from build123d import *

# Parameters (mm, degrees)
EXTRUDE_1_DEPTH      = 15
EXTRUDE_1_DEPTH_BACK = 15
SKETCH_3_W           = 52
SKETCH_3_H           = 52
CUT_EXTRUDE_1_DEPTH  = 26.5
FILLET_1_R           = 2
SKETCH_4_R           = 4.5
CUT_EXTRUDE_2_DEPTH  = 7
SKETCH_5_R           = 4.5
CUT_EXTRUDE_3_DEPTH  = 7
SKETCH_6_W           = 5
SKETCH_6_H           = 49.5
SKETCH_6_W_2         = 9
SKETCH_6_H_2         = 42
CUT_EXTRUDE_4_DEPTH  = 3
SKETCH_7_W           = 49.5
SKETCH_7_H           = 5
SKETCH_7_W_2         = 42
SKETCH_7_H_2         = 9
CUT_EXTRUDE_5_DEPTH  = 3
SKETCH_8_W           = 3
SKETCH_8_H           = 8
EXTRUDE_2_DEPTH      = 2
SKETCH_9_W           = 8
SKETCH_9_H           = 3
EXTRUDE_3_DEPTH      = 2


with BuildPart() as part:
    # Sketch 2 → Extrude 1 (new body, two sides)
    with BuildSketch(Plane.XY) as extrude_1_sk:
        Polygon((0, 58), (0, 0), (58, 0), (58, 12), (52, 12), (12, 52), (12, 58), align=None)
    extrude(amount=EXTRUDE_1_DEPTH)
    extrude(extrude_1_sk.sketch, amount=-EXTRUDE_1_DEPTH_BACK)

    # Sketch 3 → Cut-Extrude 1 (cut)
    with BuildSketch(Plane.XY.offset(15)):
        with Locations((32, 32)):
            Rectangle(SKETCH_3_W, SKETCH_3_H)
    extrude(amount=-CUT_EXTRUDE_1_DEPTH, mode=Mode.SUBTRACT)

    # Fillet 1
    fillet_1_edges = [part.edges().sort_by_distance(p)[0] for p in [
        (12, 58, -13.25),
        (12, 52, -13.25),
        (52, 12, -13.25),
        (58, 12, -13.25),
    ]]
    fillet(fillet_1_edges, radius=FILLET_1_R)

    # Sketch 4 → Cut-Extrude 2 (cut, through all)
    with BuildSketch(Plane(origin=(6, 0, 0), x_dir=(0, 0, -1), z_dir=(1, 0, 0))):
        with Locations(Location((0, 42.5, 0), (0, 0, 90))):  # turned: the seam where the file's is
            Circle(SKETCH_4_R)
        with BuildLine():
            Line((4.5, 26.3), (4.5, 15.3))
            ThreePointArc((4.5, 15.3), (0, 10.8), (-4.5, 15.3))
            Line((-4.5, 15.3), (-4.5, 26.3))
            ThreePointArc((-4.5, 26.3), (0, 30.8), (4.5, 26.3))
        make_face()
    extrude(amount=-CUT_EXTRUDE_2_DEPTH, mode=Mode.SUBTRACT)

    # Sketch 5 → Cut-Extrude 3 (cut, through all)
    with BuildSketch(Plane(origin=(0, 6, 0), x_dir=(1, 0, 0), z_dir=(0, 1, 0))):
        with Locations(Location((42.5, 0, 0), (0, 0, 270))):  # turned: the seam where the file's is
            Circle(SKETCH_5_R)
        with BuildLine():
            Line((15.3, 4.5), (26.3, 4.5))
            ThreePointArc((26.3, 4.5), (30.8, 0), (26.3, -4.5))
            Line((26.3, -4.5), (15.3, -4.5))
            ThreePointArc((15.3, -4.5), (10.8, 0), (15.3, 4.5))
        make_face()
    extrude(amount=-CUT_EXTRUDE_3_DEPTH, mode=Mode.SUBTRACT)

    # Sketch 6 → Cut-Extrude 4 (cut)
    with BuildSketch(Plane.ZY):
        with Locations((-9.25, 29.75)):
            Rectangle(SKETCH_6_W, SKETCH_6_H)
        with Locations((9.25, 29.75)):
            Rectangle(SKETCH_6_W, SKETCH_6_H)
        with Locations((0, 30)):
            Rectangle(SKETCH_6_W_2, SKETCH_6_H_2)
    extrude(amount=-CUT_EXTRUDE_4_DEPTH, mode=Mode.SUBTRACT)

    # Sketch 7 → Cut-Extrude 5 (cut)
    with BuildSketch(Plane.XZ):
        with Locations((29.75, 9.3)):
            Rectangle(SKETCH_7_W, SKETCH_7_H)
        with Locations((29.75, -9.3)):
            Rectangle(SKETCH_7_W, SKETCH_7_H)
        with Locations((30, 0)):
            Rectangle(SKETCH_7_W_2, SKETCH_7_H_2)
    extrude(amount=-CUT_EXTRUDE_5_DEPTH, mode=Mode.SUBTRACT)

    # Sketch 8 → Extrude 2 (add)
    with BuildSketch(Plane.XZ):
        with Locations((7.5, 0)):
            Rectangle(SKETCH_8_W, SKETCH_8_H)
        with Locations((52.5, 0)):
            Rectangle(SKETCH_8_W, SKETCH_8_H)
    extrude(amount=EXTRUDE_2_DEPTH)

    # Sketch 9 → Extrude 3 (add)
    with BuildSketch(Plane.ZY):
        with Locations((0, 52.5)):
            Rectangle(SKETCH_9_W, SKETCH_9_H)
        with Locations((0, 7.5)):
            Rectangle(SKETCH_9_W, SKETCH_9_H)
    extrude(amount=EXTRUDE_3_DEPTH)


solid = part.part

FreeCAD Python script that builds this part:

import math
import FreeCAD as App
import Part
import Sketcher

V = App.Vector
Q = App.Units.Quantity


def edges_at(feature, points):
    """Names of the edges that pass closest to the given points."""
    edges = feature.Shape.Edges
    near = lambda p: min(range(len(edges)), key=lambda i: edges[i].distToShape(Part.Vertex(*p))[0])
    return sorted({f"Edge{near(p) + 1}" for p in points})

doc = App.newDocument("Part")
params = doc.addObject("Spreadsheet::Sheet", "Params")
for row, (alias, value) in enumerate([
    ("sketch1_width", "58 mm"),
    ("sketch1_width2", "6 mm"),
    ("sketch1_width3", "12 mm"),
    ("pad1_length", "15 mm"),
    ("pad1_length2", "15 mm"),
    ("sketch2_width", "52 mm"),
    ("pocket1_length", "26.5 mm"),
    ("fillet_radius", "2 mm"),
    ("sketch3_diameter", "9 mm"),
    ("sketch3_width", "11 mm"),
    ("sketch4_diameter", "9 mm"),
    ("sketch4_width", "11 mm"),
    ("sketch5_width", "42 mm"),
    ("sketch5_height", "5 mm"),
    ("sketch5_height2", "9 mm"),
    ("sketch5_width2", "49.5 mm"),
    ("pocket4_length", "3 mm"),
    ("sketch6_width", "42 mm"),
    ("sketch6_height", "5 mm"),
    ("sketch6_height2", "9 mm"),
    ("sketch6_width2", "49.5 mm"),
    ("pocket5_length", "3 mm"),
    ("sketch7_width", "3 mm"),
    ("sketch7_height", "8 mm"),
    ("pad2_length", "2 mm"),
    ("sketch8_width", "3 mm"),
    ("sketch8_height", "8 mm"),
    ("pad3_length", "2 mm"),
], start=1):
    params.set(f"A{row}", alias)
    params.set(f"B{row}", "=" + value)
    params.setAlias(f"B{row}", alias)

body = doc.addObject("PartDesign::Body", "Body")

sketch1 = doc.addObject("Sketcher::SketchObject", "Sketch")
body.addObject(sketch1)
sketch1.AttachmentSupport = (doc.XY_Plane, [""])
sketch1.MapMode = "FlatFace"
sketch1.addGeometry([
    Part.LineSegment(V(0, 58, 0), V(0, 0, 0)),
    Part.LineSegment(V(0, 0, 0), V(58, 0, 0)),
    Part.LineSegment(V(58, 0, 0), V(58, 12, 0)),
    Part.LineSegment(V(58, 12, 0), V(52, 12, 0)),
    Part.LineSegment(V(52, 12, 0), V(12, 52, 0)),
    Part.LineSegment(V(12, 52, 0), V(12, 58, 0)),
    Part.LineSegment(V(12, 58, 0), V(0, 58, 0)),
], False)
sketch1.addConstraint([
    Sketcher.Constraint("Coincident", 0, 2, 1, 1),
    Sketcher.Constraint("Coincident", 1, 2, 2, 1),
    Sketcher.Constraint("Coincident", 2, 2, 3, 1),
    Sketcher.Constraint("Coincident", 3, 2, 4, 1),
    Sketcher.Constraint("Coincident", 4, 2, 5, 1),
    Sketcher.Constraint("Coincident", 5, 2, 6, 1),
    Sketcher.Constraint("Coincident", 6, 2, 0, 1),
    Sketcher.Constraint("Vertical", 0),
    Sketcher.Constraint("Horizontal", 1),
    Sketcher.Constraint("Vertical", 2),
    Sketcher.Constraint("Horizontal", 3),
    Sketcher.Constraint("Vertical", 5),
    Sketcher.Constraint("Horizontal", 6),
    Sketcher.Constraint("Coincident", 0, 2, -1, 1),
    Sketcher.Constraint("Equal", 1, 0),
    Sketcher.Constraint("Equal", 6, 2),
    Sketcher.Constraint("Equal", 3, 5),
    Sketcher.Constraint("DistanceX", 1, 1, 1, 2, Q("58 mm")),
    Sketcher.Constraint("DistanceX", 3, 2, 3, 1, Q("6 mm")),
    Sketcher.Constraint("DistanceX", 6, 2, 6, 1, Q("12 mm")),
])
sketch1.setExpression("Constraints[17]", "Params.sketch1_width")
sketch1.setExpression("Constraints[18]", "Params.sketch1_width2")
sketch1.setExpression("Constraints[19]", "Params.sketch1_width3")
pad1 = doc.addObject("PartDesign::Pad", "Pad")
body.addObject(pad1)
pad1.Profile = sketch1
pad1.Type = "TwoLengths"
pad1.setExpression("Length", "Params.pad1_length")
pad1.setExpression("Length2", "Params.pad1_length2")

sketch2 = doc.addObject("Sketcher::SketchObject", "Sketch001")
body.addObject(sketch2)
sketch2.AttachmentSupport = (doc.XY_Plane, [""])
sketch2.MapMode = "FlatFace"
sketch2.AttachmentOffset = App.Placement(V(0, 0, 15), App.Rotation())
sketch2.addGeometry([
    Part.LineSegment(V(6, 58, 0), V(6, 6, 0)),
    Part.LineSegment(V(6, 6, 0), V(58, 6, 0)),
    Part.LineSegment(V(58, 6, 0), V(58, 58, 0)),
    Part.LineSegment(V(58, 58, 0), V(6, 58, 0)),
], False)
sketch2.addConstraint([
    Sketcher.Constraint("Coincident", 0, 2, 1, 1),
    Sketcher.Constraint("Coincident", 1, 2, 2, 1),
    Sketcher.Constraint("Coincident", 2, 2, 3, 1),
    Sketcher.Constraint("Coincident", 3, 2, 0, 1),
    Sketcher.Constraint("Vertical", 0),
    Sketcher.Constraint("Horizontal", 1),
    Sketcher.Constraint("Vertical", 2),
    Sketcher.Constraint("Horizontal", 3),
    Sketcher.Constraint("Equal", 3, 0),
    Sketcher.Constraint("DistanceX", 1, 1, 1, 2, Q("52 mm")),
    Sketcher.Constraint("DistanceX", -1, 1, 0, 2, Q("6 mm")),
    Sketcher.Constraint("DistanceY", -1, 1, 0, 2, Q("6 mm")),
])
sketch2.setExpression("Constraints[9]", "Params.sketch2_width")
pocket1 = doc.addObject("PartDesign::Pocket", "Pocket")
body.addObject(pocket1)
pocket1.Profile = sketch2
pocket1.setExpression("Length", "Params.pocket1_length")
doc.recompute()

fillet = doc.addObject("PartDesign::Fillet", "Fillet")
body.addObject(fillet)
fillet.Base = (pocket1, edges_at(pocket1, [
    (12, 58, -13.25),
    (12, 52, -13.25),
    (52, 12, -13.25),
    (58, 12, -13.25),
]))
fillet.setExpression("Radius", "Params.fillet_radius")

sketch3 = doc.addObject("Sketcher::SketchObject", "Sketch002")
body.addObject(sketch3)
sketch3.AttachmentSupport = (doc.YZ_Plane, [""])
sketch3.MapMode = "FlatFace"
sketch3.AttachmentOffset = App.Placement(V(0, 0, 6), App.Rotation())
sketch3.addGeometry([
    Part.Circle(V(42.5, 0, 0), V(0, 0, 1), 4.5),
    Part.LineSegment(V(15.3, -4.5, 0), V(26.3, -4.5, 0)),
    Part.ArcOfCircle(Part.Circle(V(26.3, 0, 0), V(0, 0, 1), 4.5), math.radians(-90), math.radians(90)),
    Part.LineSegment(V(26.3, 4.5, 0), V(15.3, 4.5, 0)),
    Part.ArcOfCircle(Part.Circle(V(15.3, 0, 0), V(0, 0, 1), 4.5), math.radians(90), math.radians(270)),
], False)
sketch3.addConstraint([
    Sketcher.Constraint("Tangent", 1, 2, 2, 1),
    Sketcher.Constraint("Tangent", 2, 2, 3, 1),
    Sketcher.Constraint("Tangent", 3, 2, 4, 1),
    Sketcher.Constraint("Tangent", 4, 2, 1, 1),
    Sketcher.Constraint("Horizontal", 1),
    Sketcher.Constraint("Horizontal", 3),
    Sketcher.Constraint("Equal", 0, 2),
    Sketcher.Constraint("PointOnObject", 0, 3, -1),
    Sketcher.Constraint("PointOnObject", 2, 3, -1),
    Sketcher.Constraint("Diameter", 0, Q("9 mm")),
    Sketcher.Constraint("DistanceX", 1, 1, 1, 2, Q("11 mm")),
    Sketcher.Constraint("DistanceX", -1, 1, 0, 3, Q("42.5 mm")),
    Sketcher.Constraint("DistanceX", -1, 1, 2, 3, Q("26.3 mm")),
])
sketch3.setExpression("Constraints[9]", "Params.sketch3_diameter")
sketch3.setExpression("Constraints[10]", "Params.sketch3_width")
pocket2 = doc.addObject("PartDesign::Pocket", "Pocket001")
body.addObject(pocket2)
pocket2.Profile = sketch3
pocket2.Type = "ThroughAll"

sketch4 = doc.addObject("Sketcher::SketchObject", "Sketch003")
body.addObject(sketch4)
sketch4.AttachmentSupport = (doc.XZ_Plane, [""])
sketch4.MapMode = "FlatFace"
sketch4.AttachmentOffset = App.Placement(V(0, 0, -6), App.Rotation())
sketch4.addGeometry([
    Part.Circle(V(42.5, 0, 0), V(0, 0, 1), 4.5),
    Part.LineSegment(V(26.3, -4.5, 0), V(15.3, -4.5, 0)),
    Part.ArcOfCircle(Part.Circle(V(15.3, 0, 0), V(0, 0, 1), 4.5), math.radians(90), math.radians(270)),
    Part.LineSegment(V(15.3, 4.5, 0), V(26.3, 4.5, 0)),
    Part.ArcOfCircle(Part.Circle(V(26.3, 0, 0), V(0, 0, 1), 4.5), math.radians(-90), math.radians(90)),
], False)
sketch4.addConstraint([
    Sketcher.Constraint("Tangent", 1, 2, 2, 2),
    Sketcher.Constraint("Tangent", 2, 1, 3, 1),
    Sketcher.Constraint("Tangent", 3, 2, 4, 2),
    Sketcher.Constraint("Tangent", 4, 1, 1, 1),
    Sketcher.Constraint("Horizontal", 1),
    Sketcher.Constraint("Horizontal", 3),
    Sketcher.Constraint("Equal", 0, 2),
    Sketcher.Constraint("PointOnObject", 0, 3, -1),
    Sketcher.Constraint("PointOnObject", 2, 3, -1),
    Sketcher.Constraint("Diameter", 0, Q("9 mm")),
    Sketcher.Constraint("DistanceX", 1, 2, 1, 1, Q("11 mm")),
    Sketcher.Constraint("DistanceX", -1, 1, 0, 3, Q("42.5 mm")),
    Sketcher.Constraint("DistanceX", -1, 1, 2, 3, Q("15.3 mm")),
])
sketch4.setExpression("Constraints[9]", "Params.sketch4_diameter")
sketch4.setExpression("Constraints[10]", "Params.sketch4_width")
pocket3 = doc.addObject("PartDesign::Pocket", "Pocket002")
body.addObject(pocket3)
pocket3.Profile = sketch4
pocket3.Type = "ThroughAll"
pocket3.Reversed = True

sketch5 = doc.addObject("Sketcher::SketchObject", "Sketch004")
body.addObject(sketch5)
sketch5.AttachmentSupport = (doc.YZ_Plane, [""])
sketch5.MapMode = "FlatFace"
sketch5.addGeometry([
    Part.LineSegment(V(54, -12, 0), V(5, -12, 0)),
    Part.LineSegment(V(5, -12, 0), V(5, -7, 0)),
    Part.LineSegment(V(5, -7, 0), V(54, -7, 0)),
    Part.LineSegment(V(54, -7, 0), V(54, -12, 0)),
    Part.LineSegment(V(54, 7, 0), V(5, 7, 0)),
    Part.LineSegment(V(5, 7, 0), V(5, 12, 0)),
    Part.LineSegment(V(5, 12, 0), V(54, 12, 0)),
    Part.LineSegment(V(54, 12, 0), V(54, 7, 0)),
    Part.LineSegment(V(51, -4, 0), V(9, -4, 0)),
    Part.LineSegment(V(9, -4, 0), V(9, 4, 0)),
    Part.LineSegment(V(9, 4, 0), V(51, 4, 0)),
    Part.LineSegment(V(51, 4, 0), V(51, -4, 0)),
], False)
sketch5.addConstraint([
    Sketcher.Constraint("Coincident", 0, 2, 1, 1),
    Sketcher.Constraint("Coincident", 1, 2, 2, 1),
    Sketcher.Constraint("Coincident", 2, 2, 3, 1),
    Sketcher.Constraint("Coincident", 3, 2, 0, 1),
    Sketcher.Constraint("Coincident", 4, 2, 5, 1),
    Sketcher.Constraint("Coincident", 5, 2, 6, 1),
    Sketcher.Constraint("Coincident", 6, 2, 7, 1),
    Sketcher.Constraint("Coincident", 7, 2, 4, 1),
    Sketcher.Constraint("Coincident", 8, 2, 9, 1),
    Sketcher.Constraint("Coincident", 9, 2, 10, 1),
    Sketcher.Constraint("Coincident", 10, 2, 11, 1),
    Sketcher.Constraint("Coincident", 11, 2, 8, 1),
    Sketcher.Constraint("Horizontal", 0),
    Sketcher.Constraint("Vertical", 1),
    Sketcher.Constraint("Horizontal", 2),
    Sketcher.Constraint("Vertical", 3),
    Sketcher.Constraint("Horizontal", 4),
    Sketcher.Constraint("Vertical", 5),
    Sketcher.Constraint("Horizontal", 6),
    Sketcher.Constraint("Vertical", 7),
    Sketcher.Constraint("Horizontal", 8),
    Sketcher.Constraint("Vertical", 9),
    Sketcher.Constraint("Horizontal", 10),
    Sketcher.Constraint("Vertical", 11),
    Sketcher.Constraint("Symmetric", 1, 2, 4, 2, -1),
    Sketcher.Constraint("Symmetric", 3, 2, 6, 2, -1),
    Sketcher.Constraint("DistanceX", 8, 2, 8, 1, Q("42 mm")),
    Sketcher.Constraint("DistanceY", 1, 1, 1, 2, Q("5 mm")),
    Sketcher.Constraint("DistanceY", 9, 1, 9, 2, Q("9 mm")),
    Sketcher.Constraint("DistanceX", 0, 2, 0, 1, Q("49.5 mm")),
    Sketcher.Constraint("DistanceX", -1, 1, 0, 2, Q("5 mm")),
    Sketcher.Constraint("DistanceX", -1, 1, 8, 2, Q("9 mm")),
    Sketcher.Constraint("DistanceY", 8, 2, -1, 1, Q("4.5 mm")),
    Sketcher.Constraint("DistanceY", 1, 2, 4, 2, Q("13.5 mm")),
])
sketch5.setExpression("Constraints[26]", "Params.sketch5_width")
sketch5.setExpression("Constraints[27]", "Params.sketch5_height")
sketch5.setExpression("Constraints[28]", "Params.sketch5_height2")
sketch5.setExpression("Constraints[29]", "Params.sketch5_width2")
pocket4 = doc.addObject("PartDesign::Pocket", "Pocket003")
body.addObject(pocket4)
pocket4.Profile = sketch5
pocket4.setExpression("Length", "Params.pocket4_length")
pocket4.Reversed = True

sketch6 = doc.addObject("Sketcher::SketchObject", "Sketch005")
body.addObject(sketch6)
sketch6.AttachmentSupport = (doc.XZ_Plane, [""])
sketch6.MapMode = "FlatFace"
sketch6.addGeometry([
    Part.LineSegment(V(5, 12, 0), V(5, 7, 0)),
    Part.LineSegment(V(5, 7, 0), V(54, 7, 0)),
    Part.LineSegment(V(54, 7, 0), V(54, 12, 0)),
    Part.LineSegment(V(54, 12, 0), V(5, 12, 0)),
    Part.LineSegment(V(5, -7, 0), V(5, -12, 0)),
    Part.LineSegment(V(5, -12, 0), V(54, -12, 0)),
    Part.LineSegment(V(54, -12, 0), V(54, -7, 0)),
    Part.LineSegment(V(54, -7, 0), V(5, -7, 0)),
    Part.LineSegment(V(9, 4, 0), V(9, -4, 0)),
    Part.LineSegment(V(9, -4, 0), V(51, -4, 0)),
    Part.LineSegment(V(51, -4, 0), V(51, 4, 0)),
    Part.LineSegment(V(51, 4, 0), V(9, 4, 0)),
], False)
sketch6.addConstraint([
    Sketcher.Constraint("Coincident", 0, 2, 1, 1),
    Sketcher.Constraint("Coincident", 1, 2, 2, 1),
    Sketcher.Constraint("Coincident", 2, 2, 3, 1),
    Sketcher.Constraint("Coincident", 3, 2, 0, 1),
    Sketcher.Constraint("Coincident", 4, 2, 5, 1),
    Sketcher.Constraint("Coincident", 5, 2, 6, 1),
    Sketcher.Constraint("Coincident", 6, 2, 7, 1),
    Sketcher.Constraint("Coincident", 7, 2, 4, 1),
    Sketcher.Constraint("Coincident", 8, 2, 9, 1),
    Sketcher.Constraint("Coincident", 9, 2, 10, 1),
    Sketcher.Constraint("Coincident", 10, 2, 11, 1),
    Sketcher.Constraint("Coincident", 11, 2, 8, 1),
    Sketcher.Constraint("Vertical", 0),
    Sketcher.Constraint("Horizontal", 1),
    Sketcher.Constraint("Vertical", 2),
    Sketcher.Constraint("Horizontal", 3),
    Sketcher.Constraint("Vertical", 4),
    Sketcher.Constraint("Horizontal", 5),
    Sketcher.Constraint("Vertical", 6),
    Sketcher.Constraint("Horizontal", 7),
    Sketcher.Constraint("Vertical", 8),
    Sketcher.Constraint("Horizontal", 9),
    Sketcher.Constraint("Vertical", 10),
    Sketcher.Constraint("Horizontal", 11),
    Sketcher.Constraint("Symmetric", 3, 2, 4, 2, -1),
    Sketcher.Constraint("Symmetric", 1, 2, 6, 2, -1),
    Sketcher.Constraint("DistanceX", 9, 1, 9, 2, Q("42 mm")),
    Sketcher.Constraint("DistanceY", 0, 2, 0, 1, Q("5 mm")),
    Sketcher.Constraint("DistanceY", 8, 2, 8, 1, Q("9 mm")),
    Sketcher.Constraint("DistanceX", 1, 1, 1, 2, Q("49.5 mm")),
    Sketcher.Constraint("DistanceX", -1, 1, 0, 2, Q("5 mm")),
    Sketcher.Constraint("DistanceX", -1, 1, 8, 2, Q("9 mm")),
    Sketcher.Constraint("DistanceY", -1, 1, 0, 2, Q("6.8 mm")),
    Sketcher.Constraint("DistanceY", 8, 2, -1, 1, Q("4.5 mm")),
])
sketch6.setExpression("Constraints[26]", "Params.sketch6_width")
sketch6.setExpression("Constraints[27]", "Params.sketch6_height")
sketch6.setExpression("Constraints[28]", "Params.sketch6_height2")
sketch6.setExpression("Constraints[29]", "Params.sketch6_width2")
pocket5 = doc.addObject("PartDesign::Pocket", "Pocket004")
body.addObject(pocket5)
pocket5.Profile = sketch6
pocket5.setExpression("Length", "Params.pocket5_length")

sketch7 = doc.addObject("Sketcher::SketchObject", "Sketch006")
body.addObject(sketch7)
sketch7.AttachmentSupport = (doc.XZ_Plane, [""])
sketch7.MapMode = "FlatFace"
sketch7.addGeometry([
    Part.LineSegment(V(6, 4, 0), V(6, -4, 0)),
    Part.LineSegment(V(6, -4, 0), V(9, -4, 0)),
    Part.LineSegment(V(9, -4, 0), V(9, 4, 0)),
    Part.LineSegment(V(9, 4, 0), V(6, 4, 0)),
    Part.LineSegment(V(51, 4, 0), V(51, -4, 0)),
    Part.LineSegment(V(51, -4, 0), V(54, -4, 0)),
    Part.LineSegment(V(54, -4, 0), V(54, 4, 0)),
    Part.LineSegment(V(54, 4, 0), V(51, 4, 0)),
], False)
sketch7.addConstraint([
    Sketcher.Constraint("Coincident", 0, 2, 1, 1),
    Sketcher.Constraint("Coincident", 1, 2, 2, 1),
    Sketcher.Constraint("Coincident", 2, 2, 3, 1),
    Sketcher.Constraint("Coincident", 3, 2, 0, 1),
    Sketcher.Constraint("Coincident", 4, 2, 5, 1),
    Sketcher.Constraint("Coincident", 5, 2, 6, 1),
    Sketcher.Constraint("Coincident", 6, 2, 7, 1),
    Sketcher.Constraint("Coincident", 7, 2, 4, 1),
    Sketcher.Constraint("Vertical", 0),
    Sketcher.Constraint("Horizontal", 1),
    Sketcher.Constraint("Vertical", 2),
    Sketcher.Constraint("Horizontal", 3),
    Sketcher.Constraint("Vertical", 4),
    Sketcher.Constraint("Horizontal", 5),
    Sketcher.Constraint("Vertical", 6),
    Sketcher.Constraint("Horizontal", 7),
    Sketcher.Constraint("Horizontal", 1, 2, 4, 2),
    Sketcher.Constraint("Horizontal", 3, 2, 6, 2),
    Sketcher.Constraint("Equal", 3, 5),
    Sketcher.Constraint("DistanceX", 1, 1, 1, 2, Q("3 mm")),
    Sketcher.Constraint("DistanceY", 0, 2, 0, 1, Q("8 mm")),
    Sketcher.Constraint("DistanceX", -1, 1, 0, 2, Q("6 mm")),
    Sketcher.Constraint("DistanceY", 0, 2, -1, 1, Q("4 mm")),
    Sketcher.Constraint("DistanceX", -1, 1, 4, 2, Q("51 mm")),
])
sketch7.setExpression("Constraints[19]", "Params.sketch7_width")
sketch7.setExpression("Constraints[20]", "Params.sketch7_height")
pad2 = doc.addObject("PartDesign::Pad", "Pad001")
body.addObject(pad2)
pad2.Profile = sketch7
pad2.setExpression("Length", "Params.pad2_length")

sketch8 = doc.addObject("Sketcher::SketchObject", "Sketch007")
body.addObject(sketch8)
sketch8.AttachmentSupport = (doc.YZ_Plane, [""])
sketch8.MapMode = "FlatFace"
sketch8.addGeometry([
    Part.LineSegment(V(54, -4, 0), V(51, -4, 0)),
    Part.LineSegment(V(51, -4, 0), V(51, 4, 0)),
    Part.LineSegment(V(51, 4, 0), V(54, 4, 0)),
    Part.LineSegment(V(54, 4, 0), V(54, -4, 0)),
    Part.LineSegment(V(9, -4, 0), V(6, -4, 0)),
    Part.LineSegment(V(6, -4, 0), V(6, 4, 0)),
    Part.LineSegment(V(6, 4, 0), V(9, 4, 0)),
    Part.LineSegment(V(9, 4, 0), V(9, -4, 0)),
], False)
sketch8.addConstraint([
    Sketcher.Constraint("Coincident", 0, 2, 1, 1),
    Sketcher.Constraint("Coincident", 1, 2, 2, 1),
    Sketcher.Constraint("Coincident", 2, 2, 3, 1),
    Sketcher.Constraint("Coincident", 3, 2, 0, 1),
    Sketcher.Constraint("Coincident", 4, 2, 5, 1),
    Sketcher.Constraint("Coincident", 5, 2, 6, 1),
    Sketcher.Constraint("Coincident", 6, 2, 7, 1),
    Sketcher.Constraint("Coincident", 7, 2, 4, 1),
    Sketcher.Constraint("Horizontal", 0),
    Sketcher.Constraint("Vertical", 1),
    Sketcher.Constraint("Horizontal", 2),
    Sketcher.Constraint("Vertical", 3),
    Sketcher.Constraint("Horizontal", 4),
    Sketcher.Constraint("Vertical", 5),
    Sketcher.Constraint("Horizontal", 6),
    Sketcher.Constraint("Vertical", 7),
    Sketcher.Constraint("Horizontal", 3, 2, 4, 2),
    Sketcher.Constraint("Horizontal", 2, 2, 5, 2),
    Sketcher.Constraint("Equal", 2, 4),
    Sketcher.Constraint("DistanceX", 0, 2, 0, 1, Q("3 mm")),
    Sketcher.Constraint("DistanceY", 1, 1, 1, 2, Q("8 mm")),
    Sketcher.Constraint("DistanceX", -1, 1, 0, 2, Q("51 mm")),
    Sketcher.Constraint("DistanceY", 0, 2, -1, 1, Q("4 mm")),
    Sketcher.Constraint("DistanceX", -1, 1, 4, 2, Q("6 mm")),
])
sketch8.setExpression("Constraints[19]", "Params.sketch8_width")
sketch8.setExpression("Constraints[20]", "Params.sketch8_height")
pad3 = doc.addObject("PartDesign::Pad", "Pad002")
body.addObject(pad3)
pad3.Profile = sketch8
pad3.setExpression("Length", "Params.pad3_length")
pad3.Reversed = True

doc.recompute()
